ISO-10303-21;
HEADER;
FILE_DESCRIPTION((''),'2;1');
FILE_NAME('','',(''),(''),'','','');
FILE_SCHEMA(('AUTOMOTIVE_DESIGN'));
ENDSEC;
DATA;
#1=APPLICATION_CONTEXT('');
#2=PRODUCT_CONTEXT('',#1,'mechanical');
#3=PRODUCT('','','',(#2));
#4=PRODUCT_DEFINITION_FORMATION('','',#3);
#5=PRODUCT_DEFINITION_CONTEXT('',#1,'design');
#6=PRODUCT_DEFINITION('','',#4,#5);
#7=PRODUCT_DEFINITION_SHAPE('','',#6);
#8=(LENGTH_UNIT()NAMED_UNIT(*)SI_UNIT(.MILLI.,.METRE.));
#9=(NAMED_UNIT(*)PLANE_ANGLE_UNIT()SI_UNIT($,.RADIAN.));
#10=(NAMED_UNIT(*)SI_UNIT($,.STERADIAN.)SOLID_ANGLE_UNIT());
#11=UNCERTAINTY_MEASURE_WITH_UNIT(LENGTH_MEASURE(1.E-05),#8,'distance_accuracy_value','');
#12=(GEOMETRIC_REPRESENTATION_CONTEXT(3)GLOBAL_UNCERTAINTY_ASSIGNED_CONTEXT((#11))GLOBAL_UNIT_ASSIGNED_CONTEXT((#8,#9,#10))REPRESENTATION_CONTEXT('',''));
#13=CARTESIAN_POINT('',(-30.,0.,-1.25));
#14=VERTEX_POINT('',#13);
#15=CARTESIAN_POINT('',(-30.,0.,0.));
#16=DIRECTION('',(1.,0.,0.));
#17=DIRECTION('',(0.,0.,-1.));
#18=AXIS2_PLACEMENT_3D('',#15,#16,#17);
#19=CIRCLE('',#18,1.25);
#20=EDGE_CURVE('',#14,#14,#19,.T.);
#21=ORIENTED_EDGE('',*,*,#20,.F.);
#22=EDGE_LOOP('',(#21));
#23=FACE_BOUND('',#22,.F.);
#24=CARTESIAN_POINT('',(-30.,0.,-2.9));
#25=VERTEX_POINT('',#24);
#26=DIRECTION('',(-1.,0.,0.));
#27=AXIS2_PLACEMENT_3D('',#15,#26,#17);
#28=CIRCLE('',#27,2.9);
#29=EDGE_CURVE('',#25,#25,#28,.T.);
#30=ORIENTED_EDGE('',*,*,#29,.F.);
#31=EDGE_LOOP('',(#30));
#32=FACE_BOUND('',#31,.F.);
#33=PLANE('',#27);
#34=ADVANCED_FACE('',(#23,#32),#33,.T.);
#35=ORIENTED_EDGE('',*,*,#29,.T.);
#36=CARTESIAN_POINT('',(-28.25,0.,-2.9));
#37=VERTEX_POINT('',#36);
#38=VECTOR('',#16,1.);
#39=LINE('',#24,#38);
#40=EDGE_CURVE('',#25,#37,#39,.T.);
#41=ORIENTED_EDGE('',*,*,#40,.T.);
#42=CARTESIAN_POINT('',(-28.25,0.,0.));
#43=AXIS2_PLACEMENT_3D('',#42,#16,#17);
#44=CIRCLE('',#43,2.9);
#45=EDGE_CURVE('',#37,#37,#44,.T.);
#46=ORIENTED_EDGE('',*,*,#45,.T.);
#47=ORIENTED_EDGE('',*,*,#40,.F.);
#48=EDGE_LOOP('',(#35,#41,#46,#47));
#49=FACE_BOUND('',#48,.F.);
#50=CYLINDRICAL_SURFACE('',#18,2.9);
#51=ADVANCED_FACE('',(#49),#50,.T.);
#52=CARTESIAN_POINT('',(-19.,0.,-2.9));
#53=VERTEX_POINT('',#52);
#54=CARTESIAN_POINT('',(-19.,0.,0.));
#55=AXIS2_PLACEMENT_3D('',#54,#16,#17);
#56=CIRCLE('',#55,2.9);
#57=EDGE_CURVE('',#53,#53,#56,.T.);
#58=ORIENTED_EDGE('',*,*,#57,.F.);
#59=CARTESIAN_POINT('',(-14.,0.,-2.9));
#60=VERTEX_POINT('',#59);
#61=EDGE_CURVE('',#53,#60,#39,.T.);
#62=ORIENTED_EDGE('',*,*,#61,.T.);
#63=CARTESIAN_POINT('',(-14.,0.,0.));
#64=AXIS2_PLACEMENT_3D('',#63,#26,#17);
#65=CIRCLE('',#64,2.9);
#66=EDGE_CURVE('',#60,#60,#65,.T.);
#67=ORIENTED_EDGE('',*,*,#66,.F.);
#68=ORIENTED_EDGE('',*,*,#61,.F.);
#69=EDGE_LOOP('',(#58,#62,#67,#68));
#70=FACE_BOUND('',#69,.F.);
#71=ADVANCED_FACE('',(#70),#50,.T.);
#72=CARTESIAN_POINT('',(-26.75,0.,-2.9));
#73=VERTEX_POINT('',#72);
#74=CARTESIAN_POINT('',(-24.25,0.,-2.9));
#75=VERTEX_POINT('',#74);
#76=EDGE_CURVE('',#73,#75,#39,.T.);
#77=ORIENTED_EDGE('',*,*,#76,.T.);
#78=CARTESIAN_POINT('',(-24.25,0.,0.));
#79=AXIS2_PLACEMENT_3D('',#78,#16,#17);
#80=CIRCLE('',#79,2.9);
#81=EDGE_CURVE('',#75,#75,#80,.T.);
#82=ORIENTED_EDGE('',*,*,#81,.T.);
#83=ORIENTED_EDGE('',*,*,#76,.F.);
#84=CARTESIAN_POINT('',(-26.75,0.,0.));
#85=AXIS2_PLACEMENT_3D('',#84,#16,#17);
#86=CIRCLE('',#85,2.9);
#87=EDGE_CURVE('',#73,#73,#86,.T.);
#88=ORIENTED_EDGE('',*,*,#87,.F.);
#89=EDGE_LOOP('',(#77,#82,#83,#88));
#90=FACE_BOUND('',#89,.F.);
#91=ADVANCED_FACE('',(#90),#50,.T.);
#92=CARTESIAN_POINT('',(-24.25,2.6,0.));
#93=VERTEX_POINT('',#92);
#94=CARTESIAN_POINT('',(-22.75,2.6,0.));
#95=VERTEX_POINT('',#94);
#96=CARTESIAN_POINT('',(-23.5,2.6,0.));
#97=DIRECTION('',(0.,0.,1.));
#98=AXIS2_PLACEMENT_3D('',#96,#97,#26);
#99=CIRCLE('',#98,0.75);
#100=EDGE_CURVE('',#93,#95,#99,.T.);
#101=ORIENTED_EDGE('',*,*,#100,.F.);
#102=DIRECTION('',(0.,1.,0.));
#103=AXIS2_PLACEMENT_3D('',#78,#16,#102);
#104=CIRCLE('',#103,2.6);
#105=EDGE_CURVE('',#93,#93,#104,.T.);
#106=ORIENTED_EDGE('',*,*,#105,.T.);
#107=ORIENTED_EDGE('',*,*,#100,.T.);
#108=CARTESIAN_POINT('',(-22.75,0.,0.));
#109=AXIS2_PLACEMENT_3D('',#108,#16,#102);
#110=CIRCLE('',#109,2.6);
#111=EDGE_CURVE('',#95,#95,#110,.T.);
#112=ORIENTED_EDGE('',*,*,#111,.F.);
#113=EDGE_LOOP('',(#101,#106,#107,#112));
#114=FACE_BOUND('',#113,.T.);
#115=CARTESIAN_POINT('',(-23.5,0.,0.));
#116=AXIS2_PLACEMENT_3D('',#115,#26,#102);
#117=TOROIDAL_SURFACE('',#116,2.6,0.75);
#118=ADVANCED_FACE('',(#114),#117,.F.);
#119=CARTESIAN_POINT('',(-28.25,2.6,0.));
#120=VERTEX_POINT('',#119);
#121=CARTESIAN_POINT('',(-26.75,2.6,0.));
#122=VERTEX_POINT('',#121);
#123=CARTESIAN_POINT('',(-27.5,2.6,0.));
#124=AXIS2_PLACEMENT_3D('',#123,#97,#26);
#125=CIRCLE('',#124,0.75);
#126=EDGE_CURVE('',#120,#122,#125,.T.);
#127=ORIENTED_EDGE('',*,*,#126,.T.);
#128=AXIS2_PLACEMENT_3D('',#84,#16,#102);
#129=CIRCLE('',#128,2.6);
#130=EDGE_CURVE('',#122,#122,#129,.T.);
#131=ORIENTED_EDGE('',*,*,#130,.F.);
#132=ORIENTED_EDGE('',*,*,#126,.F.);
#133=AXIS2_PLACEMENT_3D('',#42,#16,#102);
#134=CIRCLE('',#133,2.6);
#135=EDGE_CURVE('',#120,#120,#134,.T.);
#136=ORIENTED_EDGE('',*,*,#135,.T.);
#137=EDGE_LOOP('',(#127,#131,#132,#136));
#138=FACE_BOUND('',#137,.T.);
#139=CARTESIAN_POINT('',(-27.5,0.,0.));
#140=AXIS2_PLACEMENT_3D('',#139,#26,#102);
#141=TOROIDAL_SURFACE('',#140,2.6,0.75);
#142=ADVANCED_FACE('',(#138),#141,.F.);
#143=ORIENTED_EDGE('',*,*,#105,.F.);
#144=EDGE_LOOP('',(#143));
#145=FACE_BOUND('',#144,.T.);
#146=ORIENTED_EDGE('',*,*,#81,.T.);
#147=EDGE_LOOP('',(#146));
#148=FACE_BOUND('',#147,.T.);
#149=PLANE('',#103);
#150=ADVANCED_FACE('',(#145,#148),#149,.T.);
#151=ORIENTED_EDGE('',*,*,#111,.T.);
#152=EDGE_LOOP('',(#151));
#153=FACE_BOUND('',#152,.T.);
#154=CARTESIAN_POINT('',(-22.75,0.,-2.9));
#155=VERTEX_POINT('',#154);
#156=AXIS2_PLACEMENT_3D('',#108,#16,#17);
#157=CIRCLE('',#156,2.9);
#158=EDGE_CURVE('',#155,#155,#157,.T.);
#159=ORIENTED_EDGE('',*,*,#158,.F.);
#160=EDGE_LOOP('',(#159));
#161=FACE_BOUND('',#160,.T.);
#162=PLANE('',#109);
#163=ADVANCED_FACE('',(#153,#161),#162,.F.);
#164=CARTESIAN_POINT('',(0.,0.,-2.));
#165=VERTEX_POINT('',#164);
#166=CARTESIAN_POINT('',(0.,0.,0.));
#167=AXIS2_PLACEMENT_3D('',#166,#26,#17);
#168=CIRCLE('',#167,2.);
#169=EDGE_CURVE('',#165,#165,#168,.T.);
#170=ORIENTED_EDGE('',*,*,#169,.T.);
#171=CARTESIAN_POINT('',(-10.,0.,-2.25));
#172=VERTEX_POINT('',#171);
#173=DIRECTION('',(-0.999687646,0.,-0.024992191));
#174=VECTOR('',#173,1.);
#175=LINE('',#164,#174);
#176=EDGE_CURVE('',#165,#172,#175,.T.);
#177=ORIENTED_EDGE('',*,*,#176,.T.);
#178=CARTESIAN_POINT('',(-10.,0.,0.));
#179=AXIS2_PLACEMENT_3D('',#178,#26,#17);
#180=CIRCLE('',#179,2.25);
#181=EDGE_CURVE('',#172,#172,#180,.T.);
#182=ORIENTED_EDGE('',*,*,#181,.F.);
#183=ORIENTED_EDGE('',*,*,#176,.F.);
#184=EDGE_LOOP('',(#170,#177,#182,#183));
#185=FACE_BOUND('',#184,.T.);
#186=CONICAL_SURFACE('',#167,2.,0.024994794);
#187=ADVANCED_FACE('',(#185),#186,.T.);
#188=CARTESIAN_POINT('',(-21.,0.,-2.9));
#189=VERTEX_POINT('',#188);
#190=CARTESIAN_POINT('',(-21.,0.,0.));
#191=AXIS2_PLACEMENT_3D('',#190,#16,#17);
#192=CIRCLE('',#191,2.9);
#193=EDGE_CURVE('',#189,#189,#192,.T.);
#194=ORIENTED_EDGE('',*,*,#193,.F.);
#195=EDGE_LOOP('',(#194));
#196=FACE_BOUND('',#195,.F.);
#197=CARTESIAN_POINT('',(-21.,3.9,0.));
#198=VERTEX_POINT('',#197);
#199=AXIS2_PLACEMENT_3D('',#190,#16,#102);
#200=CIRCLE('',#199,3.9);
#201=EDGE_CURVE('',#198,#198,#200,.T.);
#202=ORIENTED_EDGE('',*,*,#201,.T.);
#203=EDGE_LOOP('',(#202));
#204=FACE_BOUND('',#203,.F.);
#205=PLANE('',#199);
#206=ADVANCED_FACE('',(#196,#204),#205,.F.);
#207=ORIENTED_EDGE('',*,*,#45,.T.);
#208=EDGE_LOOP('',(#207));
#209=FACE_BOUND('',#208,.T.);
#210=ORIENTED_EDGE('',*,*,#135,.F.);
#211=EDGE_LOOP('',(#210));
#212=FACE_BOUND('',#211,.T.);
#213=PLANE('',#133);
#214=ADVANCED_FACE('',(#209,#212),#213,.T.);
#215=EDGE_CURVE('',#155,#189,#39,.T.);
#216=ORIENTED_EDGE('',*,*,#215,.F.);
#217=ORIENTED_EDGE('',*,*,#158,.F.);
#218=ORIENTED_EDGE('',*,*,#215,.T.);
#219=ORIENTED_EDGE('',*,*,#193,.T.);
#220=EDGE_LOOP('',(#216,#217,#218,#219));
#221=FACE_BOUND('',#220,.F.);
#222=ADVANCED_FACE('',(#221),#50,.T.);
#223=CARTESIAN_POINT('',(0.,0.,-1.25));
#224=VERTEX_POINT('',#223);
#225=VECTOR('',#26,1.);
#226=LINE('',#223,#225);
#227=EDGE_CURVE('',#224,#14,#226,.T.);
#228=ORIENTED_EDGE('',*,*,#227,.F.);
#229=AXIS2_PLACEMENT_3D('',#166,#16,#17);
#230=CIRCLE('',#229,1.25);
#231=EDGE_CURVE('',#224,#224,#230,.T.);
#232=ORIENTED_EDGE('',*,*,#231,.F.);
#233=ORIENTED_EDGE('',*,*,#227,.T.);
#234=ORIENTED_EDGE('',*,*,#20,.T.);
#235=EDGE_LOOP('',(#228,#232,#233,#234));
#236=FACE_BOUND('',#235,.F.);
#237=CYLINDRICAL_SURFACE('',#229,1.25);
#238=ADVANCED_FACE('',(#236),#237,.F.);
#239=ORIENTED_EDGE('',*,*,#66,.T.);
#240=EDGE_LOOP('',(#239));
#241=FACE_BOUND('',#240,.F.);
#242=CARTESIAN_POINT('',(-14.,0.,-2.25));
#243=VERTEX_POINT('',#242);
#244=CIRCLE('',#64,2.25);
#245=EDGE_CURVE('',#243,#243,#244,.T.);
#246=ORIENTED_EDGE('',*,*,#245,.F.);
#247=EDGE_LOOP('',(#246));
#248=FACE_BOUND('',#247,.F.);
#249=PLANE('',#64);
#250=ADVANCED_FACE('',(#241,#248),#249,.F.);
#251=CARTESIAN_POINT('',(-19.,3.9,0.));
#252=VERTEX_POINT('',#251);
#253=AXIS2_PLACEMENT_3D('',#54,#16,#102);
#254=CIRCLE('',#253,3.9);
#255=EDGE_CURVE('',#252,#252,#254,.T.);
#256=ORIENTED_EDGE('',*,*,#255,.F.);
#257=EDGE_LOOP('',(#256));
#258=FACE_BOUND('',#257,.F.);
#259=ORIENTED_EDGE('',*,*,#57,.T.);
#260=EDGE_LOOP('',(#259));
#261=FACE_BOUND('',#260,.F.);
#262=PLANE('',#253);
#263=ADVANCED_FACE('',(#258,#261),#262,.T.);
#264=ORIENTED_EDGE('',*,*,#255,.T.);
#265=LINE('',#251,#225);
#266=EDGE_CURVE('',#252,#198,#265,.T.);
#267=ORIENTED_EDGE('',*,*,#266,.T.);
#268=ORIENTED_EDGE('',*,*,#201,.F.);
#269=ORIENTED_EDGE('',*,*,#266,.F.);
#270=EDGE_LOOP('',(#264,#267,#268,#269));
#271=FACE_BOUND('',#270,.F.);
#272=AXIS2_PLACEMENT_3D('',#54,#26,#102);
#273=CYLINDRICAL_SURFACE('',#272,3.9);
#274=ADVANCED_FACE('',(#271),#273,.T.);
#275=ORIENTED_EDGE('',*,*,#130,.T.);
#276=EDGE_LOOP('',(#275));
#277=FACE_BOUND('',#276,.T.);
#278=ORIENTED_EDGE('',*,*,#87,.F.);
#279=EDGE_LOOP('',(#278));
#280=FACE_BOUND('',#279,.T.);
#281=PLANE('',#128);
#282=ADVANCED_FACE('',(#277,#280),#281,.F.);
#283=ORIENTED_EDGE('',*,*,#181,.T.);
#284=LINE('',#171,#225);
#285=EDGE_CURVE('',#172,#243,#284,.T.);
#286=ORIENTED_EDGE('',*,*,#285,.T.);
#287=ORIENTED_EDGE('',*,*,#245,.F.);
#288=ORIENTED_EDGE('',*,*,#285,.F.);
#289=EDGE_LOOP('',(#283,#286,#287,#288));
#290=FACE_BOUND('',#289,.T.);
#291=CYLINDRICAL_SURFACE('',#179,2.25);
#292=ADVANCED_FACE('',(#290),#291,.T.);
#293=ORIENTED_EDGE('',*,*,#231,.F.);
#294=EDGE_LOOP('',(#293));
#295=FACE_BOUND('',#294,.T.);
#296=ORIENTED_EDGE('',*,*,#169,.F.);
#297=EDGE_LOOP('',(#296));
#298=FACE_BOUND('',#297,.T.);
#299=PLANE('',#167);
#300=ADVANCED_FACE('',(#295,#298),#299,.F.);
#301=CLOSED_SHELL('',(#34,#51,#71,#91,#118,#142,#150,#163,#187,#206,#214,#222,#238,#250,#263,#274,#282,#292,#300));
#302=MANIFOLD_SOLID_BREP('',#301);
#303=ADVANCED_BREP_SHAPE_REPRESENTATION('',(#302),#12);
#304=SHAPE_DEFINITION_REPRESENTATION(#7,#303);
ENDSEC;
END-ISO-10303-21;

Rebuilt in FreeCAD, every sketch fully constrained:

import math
import FreeCAD as App
import Part
import Sketcher
from FreeCAD import Vector


def add_polygon(sketch, points):
    """Adds a closed chain of lines whose ends are joined by coincident constraints."""
    first, n = sketch.GeometryCount, len(points)
    for a, b in zip(points, points[1:] + points[:1]):
        sketch.addGeometry(Part.LineSegment(App.Vector(*a, 0), App.Vector(*b, 0)), False)
    for i in range(n):
        sketch.addConstraint(Sketcher.Constraint("Coincident", first + i, 2, first + (i + 1) % n, 1))

doc = App.newDocument("Part")
body = doc.addObject("PartDesign::Body", "Body")

sketch1 = body.newObject("Sketcher::SketchObject", "Sketch")
sketch1.AttachmentSupport = (doc.getObject("XZ_Plane"), [""])
sketch1.MapMode = "FlatFace"
add_polygon(sketch1, [(-30, 0), (0, 0), (0, -2), (-10, -2.2), (-14, -2.2), (-14, -2.9), (-30, -2.9)])
sketch1.addConstraint(Sketcher.Constraint("Horizontal", 0))
sketch1.addConstraint(Sketcher.Constraint("Vertical", 1))
sketch1.addConstraint(Sketcher.Constraint("Horizontal", 3))
sketch1.addConstraint(Sketcher.Constraint("Vertical", 4))
sketch1.addConstraint(Sketcher.Constraint("Horizontal", 5))
sketch1.addConstraint(Sketcher.Constraint("Vertical", 6))
sketch1.addConstraint(Sketcher.Constraint("Coincident", 0, 2, -1, 1))
sketch1.addConstraint(Sketcher.Constraint("DistanceX", 0, 1, 0, 2, 30.0))
sketch1.addConstraint(Sketcher.Constraint("DistanceX", 3, 2, 3, 1, 4.0))
sketch1.addConstraint(Sketcher.Constraint("DistanceX", 5, 2, 5, 1, 16.0))
sketch1.addConstraint(Sketcher.Constraint("DistanceY", 1, 2, 1, 1, 2.0))
sketch1.addConstraint(Sketcher.Constraint("DistanceY", 6, 1, 6, 2, 2.9))
sketch1.addConstraint(Sketcher.Constraint("DistanceY", 4, 2, 4, 1, 0.65))
revolution = body.newObject("PartDesign::Revolution", "Revolution")
revolution.Profile = sketch1
revolution.ReferenceAxis = (sketch1, ["H_Axis"])
revolution.Angle = 360

sketch2 = body.newObject("Sketcher::SketchObject", "Sketch001")
sketch2.AttachmentSupport = (doc.getObject("XY_Plane"), [""])
sketch2.MapMode = "FlatFace"
add_polygon(sketch2, [(-21, 3.9), (-21, 1.9), (-19, 1.9), (-19, 3.9)])
sketch2.addConstraint(Sketcher.Constraint("Vertical", 0))
sketch2.addConstraint(Sketcher.Constraint("Horizontal", 1))
sketch2.addConstraint(Sketcher.Constraint("Vertical", 2))
sketch2.addConstraint(Sketcher.Constraint("Horizontal", 3))
sketch2.addConstraint(Sketcher.Constraint("Equal", 3, 0))
sketch2.addConstraint(Sketcher.Constraint("DistanceX", 1, 1, 1, 2, 2.0))
sketch2.addConstraint(Sketcher.Constraint("DistanceX", 0, 2, -1, 1, 21.0))
sketch2.addConstraint(Sketcher.Constraint("DistanceY", -1, 1, 0, 2, 1.9))
revolution2 = body.newObject("PartDesign::Revolution", "Revolution001")
revolution2.Profile = sketch2
revolution2.ReferenceAxis = (sketch2, ["H_Axis"])
revolution2.Angle = 360

sketch3 = body.newObject("Sketcher::SketchObject", "Sketch002")
sketch3.AttachmentSupport = (doc.getObject("YZ_Plane"), [""])
sketch3.MapMode = "FlatFace"
sketch3.addGeometry(Part.Circle(Vector(0, 0, 0), Vector(0, 0, 1), 1.2), False)
sketch3.addConstraint(Sketcher.Constraint("Coincident", 0, 3, -1, 1))
sketch3.addConstraint(Sketcher.Constraint("Diameter", 0, 2.5))
pocket1 = body.newObject("PartDesign::Pocket", "Pocket")
pocket1.Profile = sketch3
pocket1.Type = "ThroughAll"

sketch4 = body.newObject("Sketcher::SketchObject", "Sketch003")
sketch4.AttachmentSupport = (doc.getObject("XY_Plane"), [""])
sketch4.MapMode = "FlatFace"
sketch4.addGeometry(Part.LineSegment(Vector(-28.2, 3.2, 0), Vector(-28.2, 2.6, 0)), False)
sketch4.addGeometry(Part.ArcOfCircle(Part.Circle(Vector(-27.5, 2.6, 0), Vector(0, 0, 1), 0.8), math.radians(180), math.radians(360)), False)
sketch4.addGeometry(Part.LineSegment(Vector(-26.8, 2.6, 0), Vector(-26.8, 3.2, 0)), False)
sketch4.addGeometry(Part.ArcOfCircle(Part.Circle(Vector(-27.5, 3.2, 0), Vector(0, 0, 1), 0.8), math.radians(0), math.radians(180)), False)
sketch4.addGeometry(Part.LineSegment(Vector(-24.2, 3.2, 0), Vector(-24.2, 2.6, 0)), False)
sketch4.addGeometry(Part.ArcOfCircle(Part.Circle(Vector(-23.5, 2.6, 0), Vector(0, 0, 1), 0.8), math.radians(180), math.radians(360)), False)
sketch4.addGeometry(Part.LineSegment(Vector(-22.8, 2.6, 0), Vector(-22.8, 3.2, 0)), False)
sketch4.addGeometry(Part.ArcOfCircle(Part.Circle(Vector(-23.5, 3.2, 0), Vector(0, 0, 1), 0.8), math.radians(0), math.radians(180)), False)
sketch4.addConstraint(Sketcher.Constraint("Tangent", 0, 2, 1, 1))
sketch4.addConstraint(Sketcher.Constraint("Tangent", 1, 2, 2, 1))
sketch4.addConstraint(Sketcher.Constraint("Tangent", 2, 2, 3, 1))
sketch4.addConstraint(Sketcher.Constraint("Tangent", 3, 2, 0, 1))
sketch4.addConstraint(Sketcher.Constraint("Tangent", 4, 2, 5, 1))
sketch4.addConstraint(Sketcher.Constraint("Tangent", 5, 2, 6, 1))
sketch4.addConstraint(Sketcher.Constraint("Tangent", 6, 2, 7, 1))
sketch4.addConstraint(Sketcher.Constraint("Tangent", 7, 2, 4, 1))
sketch4.addConstraint(Sketcher.Constraint("Vertical", 0))
sketch4.addConstraint(Sketcher.Constraint("Vertical", 2))
sketch4.addConstraint(Sketcher.Constraint("Vertical", 4))
sketch4.addConstraint(Sketcher.Constraint("Vertical", 6))
sketch4.addConstraint(Sketcher.Constraint("Equal", 3, 5))
sketch4.addConstraint(Sketcher.Constraint("Horizontal", 1, 3, 5, 3))
sketch4.addConstraint(Sketcher.Constraint("Horizontal", 3, 3, 7, 3))
sketch4.addConstraint(Sketcher.Constraint("Radius", 1, 0.75))
sketch4.addConstraint(Sketcher.Constraint("DistanceX", 1, 3, 5, 3, 4.0))
sketch4.addConstraint(Sketcher.Constraint("DistanceY", 0, 2, 0, 1, 0.6))
sketch4.addConstraint(Sketcher.Constraint("DistanceX", 1, 3, -1, 1, 27.5))
sketch4.addConstraint(Sketcher.Constraint("DistanceY", -1, 1, 1, 3, 2.6))
groove = body.newObject("PartDesign::Groove", "Groove")
groove.Profile = sketch4
groove.ReferenceAxis = (sketch4, ["H_Axis"])
groove.Angle = 360

doc.recompute()
